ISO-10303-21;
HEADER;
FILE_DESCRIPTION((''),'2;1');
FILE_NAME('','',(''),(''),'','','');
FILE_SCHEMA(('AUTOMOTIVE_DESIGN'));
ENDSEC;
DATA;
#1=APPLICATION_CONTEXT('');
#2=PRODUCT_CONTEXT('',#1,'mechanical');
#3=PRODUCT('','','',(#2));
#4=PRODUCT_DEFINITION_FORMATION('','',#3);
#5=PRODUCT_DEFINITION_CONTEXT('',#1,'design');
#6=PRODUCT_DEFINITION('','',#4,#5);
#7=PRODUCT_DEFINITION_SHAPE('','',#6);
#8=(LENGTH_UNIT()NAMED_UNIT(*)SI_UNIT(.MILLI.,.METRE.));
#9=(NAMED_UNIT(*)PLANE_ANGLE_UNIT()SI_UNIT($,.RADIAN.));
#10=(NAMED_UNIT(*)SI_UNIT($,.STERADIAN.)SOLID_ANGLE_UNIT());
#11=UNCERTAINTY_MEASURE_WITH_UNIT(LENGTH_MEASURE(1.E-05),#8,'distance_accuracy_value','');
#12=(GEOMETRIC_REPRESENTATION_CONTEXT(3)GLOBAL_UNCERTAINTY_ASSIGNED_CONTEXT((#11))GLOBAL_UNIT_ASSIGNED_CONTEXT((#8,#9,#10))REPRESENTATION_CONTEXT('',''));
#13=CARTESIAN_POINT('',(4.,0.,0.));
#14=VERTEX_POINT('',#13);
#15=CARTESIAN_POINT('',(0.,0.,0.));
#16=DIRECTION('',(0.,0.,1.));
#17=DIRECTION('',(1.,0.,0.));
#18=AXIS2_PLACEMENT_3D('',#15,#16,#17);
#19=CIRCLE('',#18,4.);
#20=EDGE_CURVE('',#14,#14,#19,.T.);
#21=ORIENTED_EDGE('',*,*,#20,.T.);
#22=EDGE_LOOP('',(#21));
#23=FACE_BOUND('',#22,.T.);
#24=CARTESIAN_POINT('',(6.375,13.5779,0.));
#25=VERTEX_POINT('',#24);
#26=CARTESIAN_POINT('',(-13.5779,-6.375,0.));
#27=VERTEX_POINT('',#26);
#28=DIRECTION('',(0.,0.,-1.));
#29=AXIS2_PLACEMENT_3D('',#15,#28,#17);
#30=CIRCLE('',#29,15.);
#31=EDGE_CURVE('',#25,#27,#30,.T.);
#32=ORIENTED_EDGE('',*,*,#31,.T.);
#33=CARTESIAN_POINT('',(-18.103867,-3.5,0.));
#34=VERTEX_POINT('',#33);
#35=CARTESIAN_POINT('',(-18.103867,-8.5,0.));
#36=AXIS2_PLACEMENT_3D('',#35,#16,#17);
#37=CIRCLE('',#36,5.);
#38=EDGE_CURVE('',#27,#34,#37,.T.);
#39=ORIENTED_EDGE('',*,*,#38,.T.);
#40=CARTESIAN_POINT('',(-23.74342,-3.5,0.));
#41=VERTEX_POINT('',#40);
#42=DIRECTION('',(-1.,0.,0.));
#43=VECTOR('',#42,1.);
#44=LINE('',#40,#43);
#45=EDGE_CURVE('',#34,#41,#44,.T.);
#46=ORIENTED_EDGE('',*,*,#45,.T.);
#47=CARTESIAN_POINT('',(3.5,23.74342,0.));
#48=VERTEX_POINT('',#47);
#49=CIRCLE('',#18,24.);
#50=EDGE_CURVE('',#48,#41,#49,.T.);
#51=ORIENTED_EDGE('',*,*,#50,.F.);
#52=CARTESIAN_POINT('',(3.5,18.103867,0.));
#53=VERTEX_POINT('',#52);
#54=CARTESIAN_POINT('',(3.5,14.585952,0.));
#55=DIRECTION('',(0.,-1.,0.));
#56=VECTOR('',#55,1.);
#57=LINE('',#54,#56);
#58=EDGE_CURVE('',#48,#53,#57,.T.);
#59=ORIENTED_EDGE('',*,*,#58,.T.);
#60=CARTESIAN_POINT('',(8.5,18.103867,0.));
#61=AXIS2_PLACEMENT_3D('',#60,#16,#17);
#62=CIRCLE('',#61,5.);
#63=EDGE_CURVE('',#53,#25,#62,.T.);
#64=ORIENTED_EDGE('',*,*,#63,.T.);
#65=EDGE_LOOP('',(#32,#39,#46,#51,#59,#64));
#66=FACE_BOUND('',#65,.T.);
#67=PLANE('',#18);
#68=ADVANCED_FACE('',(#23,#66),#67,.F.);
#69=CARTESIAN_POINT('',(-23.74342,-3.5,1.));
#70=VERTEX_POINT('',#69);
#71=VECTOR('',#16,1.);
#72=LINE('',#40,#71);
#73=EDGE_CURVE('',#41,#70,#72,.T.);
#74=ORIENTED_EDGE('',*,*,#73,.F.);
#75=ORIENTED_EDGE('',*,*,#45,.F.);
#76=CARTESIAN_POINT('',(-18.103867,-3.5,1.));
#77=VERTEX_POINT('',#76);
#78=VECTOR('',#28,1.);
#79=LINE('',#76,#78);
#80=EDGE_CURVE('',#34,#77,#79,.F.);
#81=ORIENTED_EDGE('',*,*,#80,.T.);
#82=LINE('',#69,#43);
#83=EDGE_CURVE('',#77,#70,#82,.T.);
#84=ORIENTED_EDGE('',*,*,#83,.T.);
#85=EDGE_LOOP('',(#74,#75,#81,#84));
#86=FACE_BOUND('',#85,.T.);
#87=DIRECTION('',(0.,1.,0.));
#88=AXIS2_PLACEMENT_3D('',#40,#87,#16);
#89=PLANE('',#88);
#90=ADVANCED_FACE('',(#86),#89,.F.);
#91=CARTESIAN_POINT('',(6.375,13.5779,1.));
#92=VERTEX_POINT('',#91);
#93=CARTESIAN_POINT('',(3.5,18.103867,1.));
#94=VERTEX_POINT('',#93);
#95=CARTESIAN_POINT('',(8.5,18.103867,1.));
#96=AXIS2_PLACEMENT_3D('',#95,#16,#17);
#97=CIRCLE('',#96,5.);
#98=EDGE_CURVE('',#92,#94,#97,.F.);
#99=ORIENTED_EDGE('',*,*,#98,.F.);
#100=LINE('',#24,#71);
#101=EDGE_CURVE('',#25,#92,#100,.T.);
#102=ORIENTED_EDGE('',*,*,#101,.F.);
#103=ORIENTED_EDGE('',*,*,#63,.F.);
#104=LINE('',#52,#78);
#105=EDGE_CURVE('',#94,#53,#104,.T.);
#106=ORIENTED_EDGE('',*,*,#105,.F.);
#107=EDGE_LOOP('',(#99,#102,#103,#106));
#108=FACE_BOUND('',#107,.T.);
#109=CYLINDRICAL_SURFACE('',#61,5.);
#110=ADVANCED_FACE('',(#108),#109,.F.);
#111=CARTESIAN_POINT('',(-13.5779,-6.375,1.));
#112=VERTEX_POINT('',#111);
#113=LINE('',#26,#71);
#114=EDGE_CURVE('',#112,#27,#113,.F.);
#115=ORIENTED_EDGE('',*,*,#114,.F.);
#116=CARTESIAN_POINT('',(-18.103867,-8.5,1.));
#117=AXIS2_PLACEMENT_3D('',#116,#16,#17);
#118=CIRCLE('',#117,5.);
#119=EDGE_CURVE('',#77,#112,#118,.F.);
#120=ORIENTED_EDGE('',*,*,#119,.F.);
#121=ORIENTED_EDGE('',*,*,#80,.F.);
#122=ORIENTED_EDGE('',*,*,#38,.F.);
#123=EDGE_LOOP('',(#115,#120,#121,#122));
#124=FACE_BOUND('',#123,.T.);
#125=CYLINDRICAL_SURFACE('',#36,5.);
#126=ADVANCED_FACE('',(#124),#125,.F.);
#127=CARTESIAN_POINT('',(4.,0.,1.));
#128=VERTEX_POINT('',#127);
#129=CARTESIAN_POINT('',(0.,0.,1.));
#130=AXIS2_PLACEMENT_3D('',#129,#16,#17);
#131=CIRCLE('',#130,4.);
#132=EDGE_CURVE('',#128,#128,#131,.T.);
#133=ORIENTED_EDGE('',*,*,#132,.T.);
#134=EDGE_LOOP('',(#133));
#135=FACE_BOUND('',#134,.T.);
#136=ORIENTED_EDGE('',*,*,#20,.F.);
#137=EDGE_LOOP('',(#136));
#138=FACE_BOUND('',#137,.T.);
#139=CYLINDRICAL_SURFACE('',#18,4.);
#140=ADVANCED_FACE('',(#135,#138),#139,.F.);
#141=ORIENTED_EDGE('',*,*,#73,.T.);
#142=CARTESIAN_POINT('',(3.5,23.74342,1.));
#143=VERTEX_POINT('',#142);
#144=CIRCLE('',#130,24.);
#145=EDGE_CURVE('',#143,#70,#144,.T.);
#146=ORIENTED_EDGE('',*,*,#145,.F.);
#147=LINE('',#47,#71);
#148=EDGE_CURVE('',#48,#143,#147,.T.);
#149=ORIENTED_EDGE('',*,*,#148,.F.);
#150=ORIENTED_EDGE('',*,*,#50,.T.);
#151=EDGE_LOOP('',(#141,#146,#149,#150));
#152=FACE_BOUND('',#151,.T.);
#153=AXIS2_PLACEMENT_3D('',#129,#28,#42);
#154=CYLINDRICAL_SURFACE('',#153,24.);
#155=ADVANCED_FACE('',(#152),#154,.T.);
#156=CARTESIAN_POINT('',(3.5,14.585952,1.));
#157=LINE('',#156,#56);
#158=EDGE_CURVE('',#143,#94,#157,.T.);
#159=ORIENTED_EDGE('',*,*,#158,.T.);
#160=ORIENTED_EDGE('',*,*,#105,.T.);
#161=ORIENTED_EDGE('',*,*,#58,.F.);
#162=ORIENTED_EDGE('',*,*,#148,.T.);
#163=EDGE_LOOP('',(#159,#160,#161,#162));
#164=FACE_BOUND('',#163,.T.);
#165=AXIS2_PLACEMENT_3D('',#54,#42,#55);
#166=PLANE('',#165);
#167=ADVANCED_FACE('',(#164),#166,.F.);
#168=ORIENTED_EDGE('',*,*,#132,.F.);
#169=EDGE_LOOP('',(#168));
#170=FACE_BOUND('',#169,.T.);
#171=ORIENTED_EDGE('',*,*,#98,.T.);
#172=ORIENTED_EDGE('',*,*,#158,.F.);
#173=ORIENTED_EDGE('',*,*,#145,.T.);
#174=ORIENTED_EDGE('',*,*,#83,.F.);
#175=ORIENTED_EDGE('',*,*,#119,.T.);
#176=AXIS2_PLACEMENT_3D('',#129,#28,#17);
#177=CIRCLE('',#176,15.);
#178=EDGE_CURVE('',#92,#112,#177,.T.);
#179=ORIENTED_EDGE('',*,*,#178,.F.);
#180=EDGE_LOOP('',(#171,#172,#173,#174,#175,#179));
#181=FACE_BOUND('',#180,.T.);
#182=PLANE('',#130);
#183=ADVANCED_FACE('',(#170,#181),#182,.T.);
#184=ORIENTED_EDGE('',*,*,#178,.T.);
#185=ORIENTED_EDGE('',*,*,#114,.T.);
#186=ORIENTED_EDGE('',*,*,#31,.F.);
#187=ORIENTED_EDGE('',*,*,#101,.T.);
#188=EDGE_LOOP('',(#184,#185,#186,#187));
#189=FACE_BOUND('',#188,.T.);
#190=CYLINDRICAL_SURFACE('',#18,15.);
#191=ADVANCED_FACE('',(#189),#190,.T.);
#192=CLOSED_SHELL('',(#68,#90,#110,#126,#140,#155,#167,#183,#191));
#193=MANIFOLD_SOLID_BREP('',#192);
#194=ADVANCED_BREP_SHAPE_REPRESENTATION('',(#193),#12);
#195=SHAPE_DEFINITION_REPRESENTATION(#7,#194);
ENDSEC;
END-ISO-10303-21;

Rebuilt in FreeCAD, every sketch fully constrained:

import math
import FreeCAD as App
import Part
import Sketcher

V = App.Vector
Q = App.Units.Quantity


def edges_at(feature, points):
    """Names of the edges that pass closest to the given points."""
    edges = feature.Shape.Edges
    near = lambda p: min(range(len(edges)), key=lambda i: edges[i].distToShape(Part.Vertex(*p))[0])
    return sorted({f"Edge{near(p) + 1}" for p in points})

doc = App.newDocument("Part")
body = doc.addObject("PartDesign::Body", "Body")

sketch1 = body.newObject("Sketcher::SketchObject", "Sketch")
sketch1.AttachmentSupport = (doc.getObject("XY_Plane"), [""])
sketch1.MapMode = "FlatFace"
sketch1.addGeometry(Part.Circle(V(0, 0, 0), V(0, 0, 1), 24), False)
sketch1.addConstraint([
    Sketcher.Constraint("Coincident", 0, 3, -1, 1),
    Sketcher.Constraint("Diameter", 0, Q("48 mm")),
])
pad1 = body.newObject("PartDesign::Pad", "Pad")
pad1.Profile = sketch1
pad1.Length = 1

sketch2 = body.newObject("Sketcher::SketchObject", "Sketch001")
sketch2.AttachmentSupport = (doc.getObject("XY_Plane"), [""])
sketch2.MapMode = "FlatFace"
sketch2.addGeometry([
    Part.Circle(V(0, 0, 0), V(0, 0, 1), 4),
    Part.LineSegment(V(-14.6, -3.5, 0), V(-23.7, -3.5, 0)),
    Part.ArcOfCircle(Part.Circle(V(0, 0, 0), V(0, 0, 1), 24), math.radians(-172), math.radians(82)),
    Part.LineSegment(V(3.5, 23.7, 0), V(3.5, 14.6, 0)),
    Part.ArcOfCircle(Part.Circle(V(0, 0, 0), V(0, 0, 1), 15), math.radians(-167), math.radians(77)),
], False)
sketch2.addConstraint([
    Sketcher.Constraint("Coincident", 1, 2, 2, 1),
    Sketcher.Constraint("Coincident", 2, 2, 3, 1),
    Sketcher.Constraint("Coincident", 3, 2, 4, 2),
    Sketcher.Constraint("Coincident", 4, 1, 1, 1),
    Sketcher.Constraint("Horizontal", 1),
    Sketcher.Constraint("Vertical", 3),
    Sketcher.Constraint("Coincident", 0, 3, -1, 1),
    Sketcher.Constraint("Coincident", 2, 3, -1, 1),
    Sketcher.Constraint("Coincident", 4, 3, -1, 1),
    Sketcher.Constraint("Equal", 1, 3),
    Sketcher.Constraint("Diameter", 0, Q("8 mm")),
    Sketcher.Constraint("Radius", 2, Q("24 mm")),
    Sketcher.Constraint("Radius", 4, Q("15 mm")),
    Sketcher.Constraint("DistanceY", 1, 2, -1, 1, Q("3.5 mm")),
])
pocket1 = body.newObject("PartDesign::Pocket", "Pocket")
pocket1.Profile = sketch2
pocket1.Length = 1
pocket1.Reversed = True
doc.recompute()

fillet = body.newObject("PartDesign::Fillet", "Fillet")
fillet.Base = (pocket1, edges_at(pocket1, [(-14.586, -3.5, 0.5)]))
fillet.Radius = 5
doc.recompute()

fillet2 = body.newObject("PartDesign::Fillet", "Fillet001")
fillet2.Base = (fillet, edges_at(fillet, [(3.5, 14.586, 0.5)]))
fillet2.Radius = 5

doc.recompute()
